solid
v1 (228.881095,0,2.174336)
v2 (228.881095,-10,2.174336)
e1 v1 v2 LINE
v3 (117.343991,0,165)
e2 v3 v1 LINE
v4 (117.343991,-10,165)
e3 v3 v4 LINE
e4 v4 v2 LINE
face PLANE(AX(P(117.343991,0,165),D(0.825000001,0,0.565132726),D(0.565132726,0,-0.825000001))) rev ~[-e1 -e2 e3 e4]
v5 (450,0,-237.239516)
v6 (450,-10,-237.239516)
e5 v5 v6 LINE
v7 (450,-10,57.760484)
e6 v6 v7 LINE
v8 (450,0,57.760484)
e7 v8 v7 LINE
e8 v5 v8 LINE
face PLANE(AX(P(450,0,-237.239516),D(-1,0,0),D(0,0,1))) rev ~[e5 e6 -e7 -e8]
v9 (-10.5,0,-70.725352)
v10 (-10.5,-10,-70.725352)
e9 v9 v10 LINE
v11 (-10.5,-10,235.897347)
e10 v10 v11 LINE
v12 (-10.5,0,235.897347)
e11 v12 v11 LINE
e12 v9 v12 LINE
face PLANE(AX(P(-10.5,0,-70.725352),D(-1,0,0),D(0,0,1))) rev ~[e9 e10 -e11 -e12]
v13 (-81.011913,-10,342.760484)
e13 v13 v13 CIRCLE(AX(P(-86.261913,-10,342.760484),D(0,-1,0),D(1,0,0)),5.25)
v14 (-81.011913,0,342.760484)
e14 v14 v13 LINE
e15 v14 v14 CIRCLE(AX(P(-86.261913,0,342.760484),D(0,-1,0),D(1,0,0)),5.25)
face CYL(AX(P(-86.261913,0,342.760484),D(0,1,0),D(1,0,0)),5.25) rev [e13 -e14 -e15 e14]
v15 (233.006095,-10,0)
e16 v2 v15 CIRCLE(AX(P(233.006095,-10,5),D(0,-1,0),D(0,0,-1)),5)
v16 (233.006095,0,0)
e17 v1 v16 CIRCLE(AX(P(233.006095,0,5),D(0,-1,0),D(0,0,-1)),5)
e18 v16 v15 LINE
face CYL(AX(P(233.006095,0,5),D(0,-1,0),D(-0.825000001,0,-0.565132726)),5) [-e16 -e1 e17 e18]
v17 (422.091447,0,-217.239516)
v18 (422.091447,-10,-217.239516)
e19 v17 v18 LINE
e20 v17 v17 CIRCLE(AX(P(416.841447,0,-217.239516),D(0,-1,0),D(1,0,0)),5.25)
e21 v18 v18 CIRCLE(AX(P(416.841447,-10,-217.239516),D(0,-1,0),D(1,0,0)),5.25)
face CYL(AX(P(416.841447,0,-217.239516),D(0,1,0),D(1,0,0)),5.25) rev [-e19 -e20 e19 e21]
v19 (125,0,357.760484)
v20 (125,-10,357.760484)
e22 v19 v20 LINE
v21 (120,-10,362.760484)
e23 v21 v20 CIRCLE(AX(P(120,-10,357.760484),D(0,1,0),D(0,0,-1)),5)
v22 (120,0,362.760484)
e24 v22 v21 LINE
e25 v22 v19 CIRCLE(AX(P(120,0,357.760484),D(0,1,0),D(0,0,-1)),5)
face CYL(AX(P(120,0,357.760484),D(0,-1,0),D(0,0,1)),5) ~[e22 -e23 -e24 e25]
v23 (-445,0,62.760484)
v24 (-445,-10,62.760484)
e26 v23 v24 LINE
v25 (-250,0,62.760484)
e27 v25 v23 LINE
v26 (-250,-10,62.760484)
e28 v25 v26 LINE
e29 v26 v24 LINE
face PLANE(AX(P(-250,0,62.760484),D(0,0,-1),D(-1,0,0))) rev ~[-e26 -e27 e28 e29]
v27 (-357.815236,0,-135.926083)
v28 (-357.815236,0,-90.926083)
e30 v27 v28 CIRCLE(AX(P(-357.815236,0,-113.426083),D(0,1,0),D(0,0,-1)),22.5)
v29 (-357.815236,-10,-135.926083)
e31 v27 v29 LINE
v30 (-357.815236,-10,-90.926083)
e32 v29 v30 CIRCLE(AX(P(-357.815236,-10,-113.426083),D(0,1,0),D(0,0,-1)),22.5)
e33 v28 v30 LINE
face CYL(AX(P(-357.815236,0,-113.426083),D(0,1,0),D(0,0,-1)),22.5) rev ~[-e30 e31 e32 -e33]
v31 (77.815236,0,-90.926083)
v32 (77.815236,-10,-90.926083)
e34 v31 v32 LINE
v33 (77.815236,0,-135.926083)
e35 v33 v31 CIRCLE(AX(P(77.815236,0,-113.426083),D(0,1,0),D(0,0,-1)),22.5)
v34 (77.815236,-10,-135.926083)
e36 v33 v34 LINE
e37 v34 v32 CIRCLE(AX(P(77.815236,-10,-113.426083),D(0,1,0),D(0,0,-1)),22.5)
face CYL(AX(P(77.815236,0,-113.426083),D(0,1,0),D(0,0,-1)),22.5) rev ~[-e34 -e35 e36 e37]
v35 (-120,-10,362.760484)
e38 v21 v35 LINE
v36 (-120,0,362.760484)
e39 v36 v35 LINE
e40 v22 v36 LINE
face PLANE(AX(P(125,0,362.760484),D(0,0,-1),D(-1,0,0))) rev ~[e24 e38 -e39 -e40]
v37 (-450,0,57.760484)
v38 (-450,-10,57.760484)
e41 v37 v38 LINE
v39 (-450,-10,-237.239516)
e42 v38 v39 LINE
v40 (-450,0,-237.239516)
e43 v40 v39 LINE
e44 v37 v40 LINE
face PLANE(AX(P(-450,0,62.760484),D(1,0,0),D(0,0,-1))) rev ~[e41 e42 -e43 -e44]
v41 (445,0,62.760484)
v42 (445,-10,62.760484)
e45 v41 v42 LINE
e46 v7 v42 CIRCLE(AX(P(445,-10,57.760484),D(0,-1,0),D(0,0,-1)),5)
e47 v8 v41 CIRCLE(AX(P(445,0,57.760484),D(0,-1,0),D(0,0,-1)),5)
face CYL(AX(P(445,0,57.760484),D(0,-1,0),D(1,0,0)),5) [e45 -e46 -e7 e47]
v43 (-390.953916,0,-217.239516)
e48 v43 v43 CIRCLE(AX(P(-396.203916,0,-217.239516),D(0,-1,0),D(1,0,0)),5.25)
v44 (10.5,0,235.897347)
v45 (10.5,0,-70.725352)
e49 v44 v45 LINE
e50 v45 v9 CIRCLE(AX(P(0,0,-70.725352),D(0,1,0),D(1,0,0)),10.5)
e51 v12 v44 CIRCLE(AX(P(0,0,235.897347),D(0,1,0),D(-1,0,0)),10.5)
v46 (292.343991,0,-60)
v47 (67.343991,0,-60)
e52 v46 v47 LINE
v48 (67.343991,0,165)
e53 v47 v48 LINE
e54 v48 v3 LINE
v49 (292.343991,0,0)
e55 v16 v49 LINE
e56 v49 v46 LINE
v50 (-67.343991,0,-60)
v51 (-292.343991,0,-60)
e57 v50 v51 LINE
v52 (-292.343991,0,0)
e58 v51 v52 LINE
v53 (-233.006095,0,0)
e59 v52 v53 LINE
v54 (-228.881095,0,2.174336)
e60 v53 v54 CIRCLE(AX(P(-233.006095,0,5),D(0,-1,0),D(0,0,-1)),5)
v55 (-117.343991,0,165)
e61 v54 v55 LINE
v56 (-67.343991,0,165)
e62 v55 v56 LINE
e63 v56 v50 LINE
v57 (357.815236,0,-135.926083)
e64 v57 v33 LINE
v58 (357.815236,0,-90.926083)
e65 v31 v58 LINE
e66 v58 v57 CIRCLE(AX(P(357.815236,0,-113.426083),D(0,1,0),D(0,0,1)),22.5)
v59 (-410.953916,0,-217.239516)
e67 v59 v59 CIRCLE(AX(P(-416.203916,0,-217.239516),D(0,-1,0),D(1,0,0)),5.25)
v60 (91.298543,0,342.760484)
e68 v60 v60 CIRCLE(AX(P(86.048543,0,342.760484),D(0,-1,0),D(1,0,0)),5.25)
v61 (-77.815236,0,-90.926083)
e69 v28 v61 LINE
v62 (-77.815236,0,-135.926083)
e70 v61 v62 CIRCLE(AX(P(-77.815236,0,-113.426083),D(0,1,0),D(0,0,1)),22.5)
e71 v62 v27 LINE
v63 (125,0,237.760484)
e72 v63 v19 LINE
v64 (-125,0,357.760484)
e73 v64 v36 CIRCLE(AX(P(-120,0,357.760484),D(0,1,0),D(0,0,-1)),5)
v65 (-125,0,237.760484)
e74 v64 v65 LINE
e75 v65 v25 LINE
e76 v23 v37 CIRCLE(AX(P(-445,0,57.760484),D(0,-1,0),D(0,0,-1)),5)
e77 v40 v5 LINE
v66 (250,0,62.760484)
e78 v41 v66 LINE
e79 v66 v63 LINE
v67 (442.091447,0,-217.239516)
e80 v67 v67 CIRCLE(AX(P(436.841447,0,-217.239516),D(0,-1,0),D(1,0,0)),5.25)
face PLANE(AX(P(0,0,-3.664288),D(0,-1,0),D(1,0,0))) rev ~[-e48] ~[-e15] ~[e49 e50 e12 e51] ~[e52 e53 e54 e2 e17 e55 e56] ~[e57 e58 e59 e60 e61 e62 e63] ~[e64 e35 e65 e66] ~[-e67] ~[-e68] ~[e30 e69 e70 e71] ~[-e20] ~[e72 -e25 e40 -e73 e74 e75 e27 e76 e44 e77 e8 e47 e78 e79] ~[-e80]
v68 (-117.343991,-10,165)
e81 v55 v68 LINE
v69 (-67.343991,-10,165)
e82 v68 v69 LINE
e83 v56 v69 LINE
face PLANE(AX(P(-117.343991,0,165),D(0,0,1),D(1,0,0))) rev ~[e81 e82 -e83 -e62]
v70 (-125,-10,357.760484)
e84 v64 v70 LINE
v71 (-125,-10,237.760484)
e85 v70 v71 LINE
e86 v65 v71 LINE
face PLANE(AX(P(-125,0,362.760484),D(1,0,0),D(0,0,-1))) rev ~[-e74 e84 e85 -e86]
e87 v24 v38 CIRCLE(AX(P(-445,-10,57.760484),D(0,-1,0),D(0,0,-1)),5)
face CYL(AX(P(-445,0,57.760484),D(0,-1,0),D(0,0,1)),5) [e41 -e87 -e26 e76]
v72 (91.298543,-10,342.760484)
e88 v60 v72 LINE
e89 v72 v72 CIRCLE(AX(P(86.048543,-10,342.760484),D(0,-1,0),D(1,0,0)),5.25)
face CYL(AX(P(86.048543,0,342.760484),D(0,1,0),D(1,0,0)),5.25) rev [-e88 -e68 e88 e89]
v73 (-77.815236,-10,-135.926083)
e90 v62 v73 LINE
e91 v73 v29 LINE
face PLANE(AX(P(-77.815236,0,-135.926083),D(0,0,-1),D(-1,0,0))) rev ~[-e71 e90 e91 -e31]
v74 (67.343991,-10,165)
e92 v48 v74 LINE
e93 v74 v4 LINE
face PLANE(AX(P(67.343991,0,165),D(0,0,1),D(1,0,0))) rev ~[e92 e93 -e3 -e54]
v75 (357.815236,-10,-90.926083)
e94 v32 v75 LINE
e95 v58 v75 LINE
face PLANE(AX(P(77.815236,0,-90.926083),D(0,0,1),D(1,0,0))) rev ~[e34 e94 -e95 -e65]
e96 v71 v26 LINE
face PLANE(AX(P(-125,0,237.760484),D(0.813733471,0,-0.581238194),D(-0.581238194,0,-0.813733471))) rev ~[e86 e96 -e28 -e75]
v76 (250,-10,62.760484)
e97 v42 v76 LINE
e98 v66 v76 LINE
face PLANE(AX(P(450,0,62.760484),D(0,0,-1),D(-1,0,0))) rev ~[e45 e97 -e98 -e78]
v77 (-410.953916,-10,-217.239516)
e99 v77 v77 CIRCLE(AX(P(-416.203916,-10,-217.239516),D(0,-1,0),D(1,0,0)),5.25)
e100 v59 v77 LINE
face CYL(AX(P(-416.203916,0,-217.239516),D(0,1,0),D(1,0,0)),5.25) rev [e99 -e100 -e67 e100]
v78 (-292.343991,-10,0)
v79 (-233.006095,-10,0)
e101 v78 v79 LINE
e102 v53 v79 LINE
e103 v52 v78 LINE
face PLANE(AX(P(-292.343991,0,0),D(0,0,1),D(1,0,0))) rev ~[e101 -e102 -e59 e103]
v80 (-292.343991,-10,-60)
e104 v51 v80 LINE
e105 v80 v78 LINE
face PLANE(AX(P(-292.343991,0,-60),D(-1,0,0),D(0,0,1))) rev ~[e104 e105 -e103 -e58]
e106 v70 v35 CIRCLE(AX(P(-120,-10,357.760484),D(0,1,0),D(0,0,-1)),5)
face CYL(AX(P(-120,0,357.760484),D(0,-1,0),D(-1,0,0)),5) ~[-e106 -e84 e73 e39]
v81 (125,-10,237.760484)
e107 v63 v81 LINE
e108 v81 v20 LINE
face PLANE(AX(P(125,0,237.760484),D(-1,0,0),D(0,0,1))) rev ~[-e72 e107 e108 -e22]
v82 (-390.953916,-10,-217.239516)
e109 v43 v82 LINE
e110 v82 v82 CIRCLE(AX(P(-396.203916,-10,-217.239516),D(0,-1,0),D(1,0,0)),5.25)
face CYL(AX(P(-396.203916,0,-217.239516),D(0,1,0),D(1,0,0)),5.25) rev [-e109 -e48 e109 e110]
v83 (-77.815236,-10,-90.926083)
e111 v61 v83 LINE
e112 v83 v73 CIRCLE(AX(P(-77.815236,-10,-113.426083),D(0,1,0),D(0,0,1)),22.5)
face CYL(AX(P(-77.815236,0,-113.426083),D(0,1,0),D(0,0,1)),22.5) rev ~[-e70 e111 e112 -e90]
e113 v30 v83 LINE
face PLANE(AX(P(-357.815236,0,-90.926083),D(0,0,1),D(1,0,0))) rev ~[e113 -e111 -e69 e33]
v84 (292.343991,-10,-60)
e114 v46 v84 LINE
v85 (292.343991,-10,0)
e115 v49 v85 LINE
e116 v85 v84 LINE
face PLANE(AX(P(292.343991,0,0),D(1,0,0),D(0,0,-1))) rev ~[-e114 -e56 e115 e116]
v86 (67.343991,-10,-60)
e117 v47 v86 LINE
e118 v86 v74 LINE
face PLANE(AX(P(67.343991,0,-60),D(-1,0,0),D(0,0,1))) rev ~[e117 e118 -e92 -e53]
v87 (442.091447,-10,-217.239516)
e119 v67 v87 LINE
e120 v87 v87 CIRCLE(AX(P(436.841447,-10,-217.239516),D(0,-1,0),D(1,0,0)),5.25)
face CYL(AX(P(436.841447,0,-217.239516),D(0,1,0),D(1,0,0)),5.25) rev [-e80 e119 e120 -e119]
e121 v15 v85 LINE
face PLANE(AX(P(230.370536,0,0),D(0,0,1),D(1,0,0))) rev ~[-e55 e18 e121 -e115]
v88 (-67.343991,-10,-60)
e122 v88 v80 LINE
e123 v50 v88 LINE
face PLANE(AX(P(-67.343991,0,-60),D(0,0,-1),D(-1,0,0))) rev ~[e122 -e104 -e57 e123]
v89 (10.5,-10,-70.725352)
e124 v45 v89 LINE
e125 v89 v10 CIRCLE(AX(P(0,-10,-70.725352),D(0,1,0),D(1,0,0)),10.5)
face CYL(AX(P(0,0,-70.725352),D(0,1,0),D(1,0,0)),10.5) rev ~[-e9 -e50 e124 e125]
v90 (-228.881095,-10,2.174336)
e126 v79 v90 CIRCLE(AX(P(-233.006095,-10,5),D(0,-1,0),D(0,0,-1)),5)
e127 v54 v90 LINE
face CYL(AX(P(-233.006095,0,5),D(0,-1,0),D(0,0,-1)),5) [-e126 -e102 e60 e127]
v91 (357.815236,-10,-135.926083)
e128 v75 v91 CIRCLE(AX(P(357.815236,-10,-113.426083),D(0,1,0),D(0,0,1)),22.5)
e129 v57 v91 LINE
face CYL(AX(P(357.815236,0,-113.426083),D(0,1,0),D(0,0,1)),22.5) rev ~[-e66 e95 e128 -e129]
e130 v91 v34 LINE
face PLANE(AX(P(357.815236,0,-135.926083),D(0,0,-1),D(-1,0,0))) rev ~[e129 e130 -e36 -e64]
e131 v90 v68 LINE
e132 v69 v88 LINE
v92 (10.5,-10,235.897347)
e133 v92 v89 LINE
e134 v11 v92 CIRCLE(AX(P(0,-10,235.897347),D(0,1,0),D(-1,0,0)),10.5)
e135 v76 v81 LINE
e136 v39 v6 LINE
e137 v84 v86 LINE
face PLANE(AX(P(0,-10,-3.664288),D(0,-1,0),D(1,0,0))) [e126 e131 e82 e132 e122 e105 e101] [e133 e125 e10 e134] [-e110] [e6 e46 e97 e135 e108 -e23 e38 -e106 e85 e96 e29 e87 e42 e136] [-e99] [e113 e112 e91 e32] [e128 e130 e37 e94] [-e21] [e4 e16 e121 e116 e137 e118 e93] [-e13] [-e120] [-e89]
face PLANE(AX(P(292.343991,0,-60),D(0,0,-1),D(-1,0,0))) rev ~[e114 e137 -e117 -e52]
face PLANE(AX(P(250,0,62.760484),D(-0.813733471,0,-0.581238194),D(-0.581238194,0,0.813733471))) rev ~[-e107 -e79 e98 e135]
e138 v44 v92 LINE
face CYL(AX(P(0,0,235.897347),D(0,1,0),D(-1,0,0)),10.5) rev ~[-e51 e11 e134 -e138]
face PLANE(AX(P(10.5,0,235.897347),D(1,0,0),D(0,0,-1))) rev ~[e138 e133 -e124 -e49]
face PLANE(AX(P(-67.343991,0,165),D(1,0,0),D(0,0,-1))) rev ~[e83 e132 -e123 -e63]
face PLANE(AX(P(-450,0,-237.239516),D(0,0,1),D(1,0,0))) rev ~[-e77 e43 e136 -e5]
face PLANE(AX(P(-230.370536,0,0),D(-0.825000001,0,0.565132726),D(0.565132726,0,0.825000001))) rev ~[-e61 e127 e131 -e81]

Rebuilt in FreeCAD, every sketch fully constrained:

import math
import FreeCAD as App
import Part
import Sketcher
from FreeCAD import Vector


def edges_at(feature, points):
    """Names of the edges that pass closest to the given points."""
    edges = feature.Shape.Edges
    near = lambda p: min(range(len(edges)), key=lambda i: edges[i].distToShape(Part.Vertex(*p))[0])
    return sorted({f"Edge{near(p) + 1}" for p in points})


def add_polygon(sketch, points):
    """Adds a closed chain of lines whose ends are joined by coincident constraints."""
    first, n = sketch.GeometryCount, len(points)
    for a, b in zip(points, points[1:] + points[:1]):
        sketch.addGeometry(Part.LineSegment(App.Vector(*a, 0), App.Vector(*b, 0)), False)
    for i in range(n):
        sketch.addConstraint(Sketcher.Constraint("Coincident", first + i, 2, first + (i + 1) % n, 1))

doc = App.newDocument("Part")
body = doc.addObject("PartDesign::Body", "Body")

sketch1 = body.newObject("Sketcher::SketchObject", "Sketch")
sketch1.AttachmentSupport = (doc.getObject("XZ_Plane"), [""])
sketch1.MapMode = "FlatFace"
add_polygon(sketch1, [(-250, 62.760484), (-450, 62.760484), (-450, -237.239516), (450, -237.239516), (450, 62.760484), (250, 62.760484), (125, 237.760484), (125, 362.760484), (-125, 362.760484), (-125, 237.760484)])
sketch1.addGeometry(Part.Circle(Vector(-416.203916, -217.239516, 0), Vector(0, 0, 1), 5.25), False)
sketch1.addGeometry(Part.Circle(Vector(-396.203916, -217.239516, 0), Vector(0, 0, 1), 5.25), False)
sketch1.addGeometry(Part.ArcOfCircle(Part.Circle(Vector(-357.815236, -113.426083, 0), Vector(0, 0, 1), 22.5), math.radians(90), math.radians(270)), False)
sketch1.addGeometry(Part.LineSegment(Vector(-357.815236, -90.926083, 0), Vector(-77.815236, -90.926083, 0)), False)
sketch1.addGeometry(Part.ArcOfCircle(Part.Circle(Vector(-77.815236, -113.426083, 0), Vector(0, 0, 1), 22.5), math.radians(-90), math.radians(90)), False)
sketch1.addGeometry(Part.LineSegment(Vector(-77.815236, -135.926083, 0), Vector(-357.815236, -135.926083, 0)), False)
add_polygon(sketch1, [(-67.343991, -60), (-292.343991, -60), (-292.343991, 0), (-230.370536, 0), (-117.343991, 165), (-67.343991, 165)])
sketch1.addGeometry(Part.LineSegment(Vector(357.815236, -135.926083, 0), Vector(77.815236, -135.926083, 0)), False)
sketch1.addGeometry(Part.ArcOfCircle(Part.Circle(Vector(77.815236, -113.426083, 0), Vector(0, 0, 1), 22.5), math.radians(90), math.radians(270)), False)
sketch1.addGeometry(Part.LineSegment(Vector(77.815236, -90.926083, 0), Vector(357.815236, -90.926083, 0)), False)
sketch1.addGeometry(Part.ArcOfCircle(Part.Circle(Vector(357.815236, -113.426083, 0), Vector(0, 0, 1), 22.5), math.radians(-90), math.radians(90)), False)
sketch1.addGeometry(Part.Circle(Vector(416.841447, -217.239516, 0), Vector(0, 0, 1), 5.25), False)
sketch1.addGeometry(Part.Circle(Vector(436.841447, -217.239516, 0), Vector(0, 0, 1), 5.25), False)
add_polygon(sketch1, [(67.343991, -60), (67.343991, 165), (117.343991, 165), (230.370536, 0), (292.343991, 0), (292.343991, -60)])
sketch1.addGeometry(Part.LineSegment(Vector(-10.5, -70.725352, 0), Vector(-10.5, 235.897347, 0)), False)
sketch1.addGeometry(Part.ArcOfCircle(Part.Circle(Vector(0, 235.897347, 0), Vector(0, 0, 1), 10.5), math.radians(0), math.radians(180)), False)
sketch1.addGeometry(Part.LineSegment(Vector(10.5, 235.897347, 0), Vector(10.5, -70.725352, 0)), False)
sketch1.addGeometry(Part.ArcOfCircle(Part.Circle(Vector(0, -70.725352, 0), Vector(0, 0, 1), 10.5), math.radians(180), math.radians(360)), False)
sketch1.addGeometry(Part.Circle(Vector(-86.261913, 342.760484, 0), Vector(0, 0, 1), 5.25), False)
sketch1.addGeometry(Part.Circle(Vector(86.048543, 342.760484, 0), Vector(0, 0, 1), 5.25), False)
sketch1.addConstraint([
    Sketcher.Constraint("Tangent", 12, 1, 13, 1),
    Sketcher.Constraint("Tangent", 13, 2, 14, 2),
    Sketcher.Constraint("Tangent", 14, 1, 15, 1),
    Sketcher.Constraint("Tangent", 15, 2, 12, 2),
    Sketcher.Constraint("Tangent", 22, 2, 23, 2),
    Sketcher.Constraint("Tangent", 23, 1, 24, 1),
    Sketcher.Constraint("Tangent", 24, 2, 25, 2),
    Sketcher.Constraint("Tangent", 25, 1, 22, 1),
    Sketcher.Constraint("Tangent", 34, 2, 35, 2),
    Sketcher.Constraint("Tangent", 35, 1, 36, 1),
    Sketcher.Constraint("Tangent", 36, 2, 37, 2),
    Sketcher.Constraint("Tangent", 37, 1, 34, 1),
    Sketcher.Constraint("Horizontal", 0),
    Sketcher.Constraint("Vertical", 1),
    Sketcher.Constraint("Horizontal", 2),
    Sketcher.Constraint("Vertical", 3),
    Sketcher.Constraint("Horizontal", 4),
    Sketcher.Constraint("Vertical", 6),
    Sketcher.Constraint("Horizontal", 7),
    Sketcher.Constraint("Vertical", 8),
    Sketcher.Constraint("Horizontal", 13),
    Sketcher.Constraint("Horizontal", 15),
    Sketcher.Constraint("Horizontal", 16),
    Sketcher.Constraint("Vertical", 17),
    Sketcher.Constraint("Horizontal", 18),
    Sketcher.Constraint("Horizontal", 20),
    Sketcher.Constraint("Vertical", 21),
    Sketcher.Constraint("Horizontal", 22),
    Sketcher.Constraint("Horizontal", 24),
    Sketcher.Constraint("Vertical", 28),
    Sketcher.Constraint("Horizontal", 29),
    Sketcher.Constraint("Horizontal", 31),
    Sketcher.Constraint("Vertical", 32),
    Sketcher.Constraint("Horizontal", 33),
    Sketcher.Constraint("Vertical", 34),
    Sketcher.Constraint("Vertical", 36),
    Sketcher.Constraint("Equal", 10, 11),
    Sketcher.Constraint("Equal", 14, 23),
    Sketcher.Constraint("Equal", 11, 26),
    Sketcher.Constraint("Equal", 26, 27),
    Sketcher.Constraint("Equal", 27, 38),
    Sketcher.Constraint("Equal", 38, 39),
    Sketcher.Constraint("Symmetric", 18, 2, 30, 2, -1, 1),
    Sketcher.Constraint("Symmetric", 14, 3, 23, 3, -2),
    Sketcher.Constraint("Symmetric", 0, 2, 3, 2, -2),
    Sketcher.Constraint("Symmetric", 5, 2, 8, 2, -2),
    Sketcher.Constraint("Symmetric", 20, 2, 28, 2, -2),
    Sketcher.Constraint("Symmetric", 17, 2, 31, 2, -2),
    Sketcher.Constraint("PointOnObject", 35, 3, -2),
    Sketcher.Constraint("Horizontal", 10, 3, 11, 3),
    Sketcher.Constraint("Horizontal", 11, 3, 26, 3),
    Sketcher.Constraint("Horizontal", 26, 3, 27, 3),
    Sketcher.Constraint("Horizontal", 38, 3, 39, 3),
    Sketcher.Constraint("Horizontal", 21, 2, 32, 2),
    Sketcher.Constraint("Equal", 0, 4),
    Sketcher.Constraint("Equal", 15, 22),
    Sketcher.Constraint("Equal", 20, 29),
    Sketcher.Constraint("Equal", 33, 21),
    Sketcher.Constraint("Diameter", 10, 10.5),
    Sketcher.Constraint("Radius", 12, 22.5),
    Sketcher.Constraint("Radius", 35, 10.5),
    Sketcher.Constraint("DistanceX", 0, 2, 0, 1, 200.0),
    Sketcher.Constraint("DistanceX", 2, 1, 2, 2, 900.0),
    Sketcher.Constraint("DistanceX", 7, 2, 7, 1, 250.0),
    Sketcher.Constraint("DistanceX", 13, 1, 13, 2, 280.0),
    Sketcher.Constraint("DistanceX", 16, 2, 16, 1, 225.0),
    Sketcher.Constraint("DistanceX", 20, 1, 20, 2, 50.0),
    Sketcher.Constraint("DistanceY", 1, 2, 1, 1, 300.0),
    Sketcher.Constraint("DistanceY", 6, 1, 6, 2, 125.0),
    Sketcher.Constraint("DistanceY", 17, 1, 17, 2, 60.0),
    Sketcher.Constraint("Distance", 19, 200.0),
    Sketcher.Constraint("DistanceX", 10, 3, 11, 3, 20.0),
    Sketcher.Constraint("DistanceX", 26, 3, 27, 3, 20.0),
    Sketcher.Constraint("DistanceY", 10, 3, 0, 2, 280.0),
    Sketcher.Constraint("DistanceY", 0, 2, 38, 3, 280.0),
    Sketcher.Constraint("DistanceY", 5, 2, 39, 3, 105.0),
    Sketcher.Constraint("DistanceY", 34, 1, 34, 2, 306.622699),
    Sketcher.Constraint("DistanceX", 12, 1, 18, 2, 127.4447),
    Sketcher.Constraint("DistanceY", 37, 3, -1, 1, 70.725352),
    Sketcher.Constraint("DistanceX", 16, 2, -1, 1, 292.343991),
    Sketcher.Constraint("DistanceX", 11, 3, 12, 3, 38.38868),
    Sketcher.Constraint("DistanceX", 25, 3, 26, 3, 59.026211),
    Sketcher.Constraint("DistanceY", 14, 3, 35, 3, 349.32343),
    Sketcher.Constraint("DistanceX", 38, 3, 23, 3, 164.077149),
    Sketcher.Constraint("DistanceX", 14, 3, 39, 3, 163.863779),
    Sketcher.Constraint("DistanceY", 10, 3, -1, 1, 217.239516),
])
pad1 = body.newObject("PartDesign::Pad", "Pad")
pad1.Profile = sketch1
pad1.Length = 10
doc.recompute()

fillet = body.newObject("PartDesign::Fillet", "Fillet")
fillet.Base = (pad1, edges_at(pad1, [(-230.371, -5, 0), (230.371, -5, 0)]))
fillet.Radius = 5
doc.recompute()

fillet2 = body.newObject("PartDesign::Fillet", "Fillet001")
fillet2.Base = (fillet, edges_at(fillet, [
    (-450, -5, 62.76),
    (-125, -5, 362.76),
    (125, -5, 362.76),
    (450, -5, 62.76),
]))
fillet2.Radius = 5

doc.recompute()
